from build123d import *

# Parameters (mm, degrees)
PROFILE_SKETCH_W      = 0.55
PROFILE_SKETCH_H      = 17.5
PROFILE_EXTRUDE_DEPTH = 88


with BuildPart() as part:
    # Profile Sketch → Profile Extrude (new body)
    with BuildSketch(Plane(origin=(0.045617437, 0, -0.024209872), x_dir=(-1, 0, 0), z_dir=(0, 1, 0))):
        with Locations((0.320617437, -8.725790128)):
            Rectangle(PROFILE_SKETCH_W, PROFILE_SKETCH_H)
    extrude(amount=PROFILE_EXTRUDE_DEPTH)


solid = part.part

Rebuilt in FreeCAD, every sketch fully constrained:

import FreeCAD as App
import Part
import Sketcher
from FreeCAD import Vector

doc = App.newDocument("Part")
params = doc.addObject("Spreadsheet::Sheet", "Params")
for row, (alias, value) in enumerate([
    ("sketch1_height", "17.5 mm"),
    ("sketch1_width", "0.55 mm"),
    ("pad1_length", "88 mm"),
], start=1):
    params.set(f"A{row}", alias)
    params.set(f"B{row}", "=" + value)
    params.setAlias(f"B{row}", alias)

body = doc.addObject("PartDesign::Body", "Body")

sketch1 = body.newObject("Sketcher::SketchObject", "Sketch")
sketch1.AttachmentSupport = (doc.getObject("XZ_Plane"), [""])
sketch1.MapMode = "FlatFace"
sketch1.addGeometry(Part.LineSegment(Vector(0, 0, 0), Vector(0, -17.5, 0)), False)
sketch1.addGeometry(Part.LineSegment(Vector(0, -17.5, 0), Vector(-0.55, -17.5, 0)), False)
sketch1.addGeometry(Part.LineSegment(Vector(-0.55, -17.5, 0), Vector(-0.55, 0, 0)), False)
sketch1.addGeometry(Part.LineSegment(Vector(-0.55, 0, 0), Vector(0, 0, 0)), False)
sketch1.addConstraint(Sketcher.Constraint("Coincident", 0, 2, 1, 1))
sketch1.addConstraint(Sketcher.Constraint("Coincident", 1, 2, 2, 1))
sketch1.addConstraint(Sketcher.Constraint("Coincident", 2, 2, 3, 1))
sketch1.addConstraint(Sketcher.Constraint("Coincident", 3, 2, 0, 1))
sketch1.addConstraint(Sketcher.Constraint("Vertical", 0))
sketch1.addConstraint(Sketcher.Constraint("Horizontal", 1))
sketch1.addConstraint(Sketcher.Constraint("Vertical", 2))
sketch1.addConstraint(Sketcher.Constraint("Horizontal", 3))
sketch1.addConstraint(Sketcher.Constraint("Coincident", 3, 2, -1, 1))
sketch1.addConstraint(Sketcher.Constraint("DistanceY", 0, 2, 0, 1, 17.5))
sketch1.addConstraint(Sketcher.Constraint("DistanceX", 1, 2, 1, 1, 0.55))
sketch1.setExpression("Constraints[9]", "Params.sketch1_height")
sketch1.setExpression("Constraints[10]", "Params.sketch1_width")
pad1 = body.newObject("PartDesign::Pad", "Pad")
pad1.Profile = sketch1
pad1.setExpression("Length", "Params.pad1_length")
pad1.Reversed = True

doc.recompute()
